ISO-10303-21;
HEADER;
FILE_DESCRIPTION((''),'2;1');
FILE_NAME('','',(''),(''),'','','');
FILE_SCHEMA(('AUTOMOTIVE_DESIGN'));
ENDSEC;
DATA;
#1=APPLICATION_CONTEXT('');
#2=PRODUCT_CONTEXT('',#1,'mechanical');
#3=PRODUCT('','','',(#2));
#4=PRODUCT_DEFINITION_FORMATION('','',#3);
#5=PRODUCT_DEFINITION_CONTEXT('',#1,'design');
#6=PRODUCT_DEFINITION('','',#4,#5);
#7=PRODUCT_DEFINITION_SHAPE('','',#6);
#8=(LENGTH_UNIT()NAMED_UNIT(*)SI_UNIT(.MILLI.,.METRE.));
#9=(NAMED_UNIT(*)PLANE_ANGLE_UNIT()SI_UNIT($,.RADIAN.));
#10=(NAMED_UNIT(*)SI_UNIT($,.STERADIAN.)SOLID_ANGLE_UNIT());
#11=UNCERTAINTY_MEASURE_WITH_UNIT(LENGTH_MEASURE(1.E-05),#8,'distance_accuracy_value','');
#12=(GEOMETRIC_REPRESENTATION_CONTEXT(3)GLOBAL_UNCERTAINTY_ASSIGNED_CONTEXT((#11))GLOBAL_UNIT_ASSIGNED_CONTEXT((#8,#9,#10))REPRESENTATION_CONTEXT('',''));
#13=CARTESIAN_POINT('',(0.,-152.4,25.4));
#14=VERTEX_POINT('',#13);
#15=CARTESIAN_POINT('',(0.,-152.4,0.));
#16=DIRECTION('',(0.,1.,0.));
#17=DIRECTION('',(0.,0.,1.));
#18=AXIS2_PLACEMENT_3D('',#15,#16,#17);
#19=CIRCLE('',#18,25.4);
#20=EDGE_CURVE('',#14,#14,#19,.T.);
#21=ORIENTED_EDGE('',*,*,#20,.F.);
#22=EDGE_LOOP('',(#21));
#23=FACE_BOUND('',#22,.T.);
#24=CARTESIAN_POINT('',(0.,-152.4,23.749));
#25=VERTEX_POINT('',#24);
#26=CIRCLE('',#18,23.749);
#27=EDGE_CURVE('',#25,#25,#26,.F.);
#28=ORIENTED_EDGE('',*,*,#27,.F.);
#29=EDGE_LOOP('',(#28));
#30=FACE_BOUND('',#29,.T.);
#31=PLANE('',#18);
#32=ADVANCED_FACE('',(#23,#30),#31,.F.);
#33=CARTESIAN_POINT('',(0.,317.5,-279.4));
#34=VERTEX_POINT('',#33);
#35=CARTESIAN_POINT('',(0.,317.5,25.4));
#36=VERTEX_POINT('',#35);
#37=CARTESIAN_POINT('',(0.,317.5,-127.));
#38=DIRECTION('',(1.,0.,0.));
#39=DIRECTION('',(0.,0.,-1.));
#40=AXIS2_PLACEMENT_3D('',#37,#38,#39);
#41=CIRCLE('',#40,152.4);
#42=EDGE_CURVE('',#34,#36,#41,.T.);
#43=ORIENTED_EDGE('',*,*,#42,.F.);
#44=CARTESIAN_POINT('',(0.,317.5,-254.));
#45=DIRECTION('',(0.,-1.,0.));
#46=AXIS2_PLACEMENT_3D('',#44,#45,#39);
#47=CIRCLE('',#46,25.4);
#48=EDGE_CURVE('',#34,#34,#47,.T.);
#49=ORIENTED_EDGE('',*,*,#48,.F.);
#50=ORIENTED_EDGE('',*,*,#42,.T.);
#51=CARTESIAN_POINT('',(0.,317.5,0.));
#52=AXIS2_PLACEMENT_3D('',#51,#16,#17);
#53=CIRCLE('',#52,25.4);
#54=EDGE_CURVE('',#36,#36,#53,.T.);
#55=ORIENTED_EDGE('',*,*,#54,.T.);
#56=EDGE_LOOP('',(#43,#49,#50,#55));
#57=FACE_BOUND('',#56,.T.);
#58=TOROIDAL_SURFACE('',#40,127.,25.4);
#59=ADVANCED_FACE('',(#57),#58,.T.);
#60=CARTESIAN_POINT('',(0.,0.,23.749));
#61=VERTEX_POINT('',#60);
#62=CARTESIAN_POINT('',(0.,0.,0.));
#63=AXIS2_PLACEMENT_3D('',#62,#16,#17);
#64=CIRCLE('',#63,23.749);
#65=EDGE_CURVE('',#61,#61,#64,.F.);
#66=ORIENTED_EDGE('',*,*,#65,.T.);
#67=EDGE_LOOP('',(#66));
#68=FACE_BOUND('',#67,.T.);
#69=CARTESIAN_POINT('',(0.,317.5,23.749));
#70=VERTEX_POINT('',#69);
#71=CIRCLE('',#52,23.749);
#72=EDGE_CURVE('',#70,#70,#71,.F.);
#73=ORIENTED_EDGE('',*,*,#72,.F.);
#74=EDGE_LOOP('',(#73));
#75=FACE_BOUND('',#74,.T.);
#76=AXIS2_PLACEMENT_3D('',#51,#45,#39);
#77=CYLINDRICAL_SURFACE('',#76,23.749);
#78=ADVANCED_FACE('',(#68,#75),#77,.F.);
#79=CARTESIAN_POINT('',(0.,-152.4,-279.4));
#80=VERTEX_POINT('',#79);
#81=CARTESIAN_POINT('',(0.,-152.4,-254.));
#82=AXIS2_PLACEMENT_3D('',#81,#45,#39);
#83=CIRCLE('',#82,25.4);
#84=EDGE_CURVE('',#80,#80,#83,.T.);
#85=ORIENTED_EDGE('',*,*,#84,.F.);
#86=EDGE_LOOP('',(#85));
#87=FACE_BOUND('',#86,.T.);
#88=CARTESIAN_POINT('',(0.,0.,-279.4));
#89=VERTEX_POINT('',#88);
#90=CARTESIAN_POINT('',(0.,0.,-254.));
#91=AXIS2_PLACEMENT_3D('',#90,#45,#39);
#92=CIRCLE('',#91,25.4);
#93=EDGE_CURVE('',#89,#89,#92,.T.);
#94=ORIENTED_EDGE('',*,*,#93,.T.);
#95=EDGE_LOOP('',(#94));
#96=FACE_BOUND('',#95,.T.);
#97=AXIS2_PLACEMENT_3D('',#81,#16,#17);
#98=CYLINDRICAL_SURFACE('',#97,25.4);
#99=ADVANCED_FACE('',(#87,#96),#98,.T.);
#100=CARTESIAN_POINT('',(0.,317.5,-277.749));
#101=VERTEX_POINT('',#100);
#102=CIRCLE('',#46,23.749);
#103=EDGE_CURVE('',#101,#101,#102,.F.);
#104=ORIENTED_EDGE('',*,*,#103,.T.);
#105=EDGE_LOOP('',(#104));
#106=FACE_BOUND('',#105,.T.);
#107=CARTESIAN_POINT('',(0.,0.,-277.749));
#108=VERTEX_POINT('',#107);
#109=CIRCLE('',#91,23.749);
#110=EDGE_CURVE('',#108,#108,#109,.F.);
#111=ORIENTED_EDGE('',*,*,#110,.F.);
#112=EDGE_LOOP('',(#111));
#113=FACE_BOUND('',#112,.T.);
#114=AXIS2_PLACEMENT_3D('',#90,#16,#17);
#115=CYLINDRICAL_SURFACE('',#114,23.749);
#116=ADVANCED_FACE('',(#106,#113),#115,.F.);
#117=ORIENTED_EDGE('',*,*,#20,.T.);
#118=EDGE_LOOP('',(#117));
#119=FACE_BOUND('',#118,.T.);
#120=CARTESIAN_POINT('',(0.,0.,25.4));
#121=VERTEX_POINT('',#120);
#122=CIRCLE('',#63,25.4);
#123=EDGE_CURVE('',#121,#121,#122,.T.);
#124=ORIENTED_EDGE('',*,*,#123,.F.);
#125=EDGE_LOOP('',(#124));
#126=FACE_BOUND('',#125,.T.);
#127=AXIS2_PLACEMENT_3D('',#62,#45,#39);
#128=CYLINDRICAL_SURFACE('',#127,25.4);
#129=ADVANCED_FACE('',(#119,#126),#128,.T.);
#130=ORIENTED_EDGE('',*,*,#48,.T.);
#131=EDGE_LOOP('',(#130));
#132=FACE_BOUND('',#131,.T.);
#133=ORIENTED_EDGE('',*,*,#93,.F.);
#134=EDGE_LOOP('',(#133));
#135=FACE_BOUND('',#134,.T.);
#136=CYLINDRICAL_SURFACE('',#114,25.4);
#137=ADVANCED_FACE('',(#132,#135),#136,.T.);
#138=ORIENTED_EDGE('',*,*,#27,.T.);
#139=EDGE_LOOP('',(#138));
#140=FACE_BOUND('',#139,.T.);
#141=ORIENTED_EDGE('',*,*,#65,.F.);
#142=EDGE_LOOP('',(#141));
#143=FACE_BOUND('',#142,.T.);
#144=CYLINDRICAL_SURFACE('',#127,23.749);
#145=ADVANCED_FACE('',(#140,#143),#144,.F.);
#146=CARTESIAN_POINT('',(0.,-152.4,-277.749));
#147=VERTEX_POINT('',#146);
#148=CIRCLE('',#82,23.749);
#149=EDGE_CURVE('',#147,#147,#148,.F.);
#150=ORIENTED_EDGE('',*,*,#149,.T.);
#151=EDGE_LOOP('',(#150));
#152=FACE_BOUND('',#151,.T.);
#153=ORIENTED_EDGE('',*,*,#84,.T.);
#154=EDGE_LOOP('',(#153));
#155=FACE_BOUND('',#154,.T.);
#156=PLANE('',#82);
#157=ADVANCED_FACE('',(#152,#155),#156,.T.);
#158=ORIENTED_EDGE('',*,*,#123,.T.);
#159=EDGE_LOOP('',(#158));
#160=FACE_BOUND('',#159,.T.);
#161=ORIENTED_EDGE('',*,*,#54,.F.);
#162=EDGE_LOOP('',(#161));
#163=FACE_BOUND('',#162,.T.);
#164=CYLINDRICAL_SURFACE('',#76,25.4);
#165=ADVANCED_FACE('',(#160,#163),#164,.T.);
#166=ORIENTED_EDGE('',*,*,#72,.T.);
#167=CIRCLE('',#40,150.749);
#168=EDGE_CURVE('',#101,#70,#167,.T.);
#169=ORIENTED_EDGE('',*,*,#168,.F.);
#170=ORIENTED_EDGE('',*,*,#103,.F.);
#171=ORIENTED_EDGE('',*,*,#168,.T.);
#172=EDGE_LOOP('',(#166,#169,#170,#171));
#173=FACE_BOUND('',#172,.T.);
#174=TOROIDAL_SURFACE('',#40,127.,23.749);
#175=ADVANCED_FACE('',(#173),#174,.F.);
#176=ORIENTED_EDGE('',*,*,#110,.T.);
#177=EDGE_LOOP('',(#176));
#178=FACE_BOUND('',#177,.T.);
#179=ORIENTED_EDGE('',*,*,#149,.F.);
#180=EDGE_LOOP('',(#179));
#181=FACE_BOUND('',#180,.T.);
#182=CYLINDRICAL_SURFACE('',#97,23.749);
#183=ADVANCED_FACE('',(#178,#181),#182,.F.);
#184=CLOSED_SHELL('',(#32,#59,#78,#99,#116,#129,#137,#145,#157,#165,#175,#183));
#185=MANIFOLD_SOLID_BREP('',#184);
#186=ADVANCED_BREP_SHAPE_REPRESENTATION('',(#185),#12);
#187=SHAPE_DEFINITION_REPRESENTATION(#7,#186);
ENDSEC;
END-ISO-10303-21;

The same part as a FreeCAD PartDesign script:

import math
import FreeCAD as App
import Part
import Sketcher
Q = App.Units.Quantity

doc = App.newDocument("Part")
params = doc.addObject("Spreadsheet::Sheet", "Params")
for row, (alias, value) in enumerate([
    ("sketch1_diameter", "2 in"),
    ("sketch1_diameter2", "1.87 in"),
    ("sketch2_radius", "5 in"),
    ("sketch2_width", "18.5 in"),
], start=1):
    params.set(f"A{row}", alias)
    params.set(f"B{row}", "=" + value)
    params.setAlias(f"B{row}", alias)

body = doc.addObject("PartDesign::Body", "Body")

# Sketch on XZ plane
sketch1 = doc.addObject("Sketcher::SketchObject", "Sketch")
body.addObject(sketch1)
sketch1.AttachmentSupport = (doc.XZ_Plane, [""])
sketch1.MapMode = "FlatFace"
sketch1.AttachmentOffset = App.Placement(App.Vector(0, 0, 6 * 25.4), App.Rotation())
sketch1.addGeometry([
    Part.Circle(App.Vector(0, 0, 0), App.Vector(0, 0, 1), 25),
    Part.Circle(App.Vector(0, 0, 0), App.Vector(0, 0, 1), 24),
], False)
sketch1.addConstraint([
    Sketcher.Constraint("Coincident", 0, 3, -1, 1),
    Sketcher.Constraint("Coincident", 1, 3, -1, 1),
    Sketcher.Constraint("Diameter", 0, Q("2 in")),
    Sketcher.Constraint("Diameter", 1, Q("1.87 in")),
])
sketch1.setExpression("Constraints[2]", "Params.sketch1_diameter")
sketch1.setExpression("Constraints[3]", "Params.sketch1_diameter2")

# Sketch on YZ plane
sketch2 = doc.addObject("Sketcher::SketchObject", "Sketch001")
body.addObject(sketch2)
sketch2.AttachmentSupport = (doc.YZ_Plane, [""])
sketch2.MapMode = "FlatFace"
sketch2.addGeometry([
    Part.LineSegment(App.Vector(-152, 0, 0), App.Vector(318, 0, 0)),
    Part.ArcOfCircle(Part.Circle(App.Vector(318, -127, 0), App.Vector(0, 0, 1), 127), math.radians(-90), math.radians(90)),
    Part.LineSegment(App.Vector(318, -254, 0), App.Vector(-152, -254, 0)),
], False)
sketch2.addConstraint([
    Sketcher.Constraint("Tangent", 0, 2, 1, 2),
    Sketcher.Constraint("Tangent", 1, 1, 2, 1),
    Sketcher.Constraint("Horizontal", 0),
    Sketcher.Constraint("Horizontal", 2),
    Sketcher.Constraint("PointOnObject", 0, 1, -1),
    Sketcher.Constraint("Vertical", 0, 1, 2, 2),
    Sketcher.Constraint("Radius", 1, Q("5 in")),
    Sketcher.Constraint("DistanceX", 0, 1, 0, 2, Q("18.5 in")),
    Sketcher.Constraint("DistanceX", 0, 1, -1, 1, Q("6 in")),
])
sketch2.setExpression("Constraints[6]", "Params.sketch2_radius")
sketch2.setExpression("Constraints[7]", "Params.sketch2_width")
doc.recompute()

additivepipe = doc.addObject("PartDesign::AdditivePipe", "AdditivePipe")
body.addObject(additivepipe)
additivepipe.Profile = sketch1
additivepipe.Spine = (sketch2, ["Edge1", "Edge2", "Edge3"])

doc.recompute()
